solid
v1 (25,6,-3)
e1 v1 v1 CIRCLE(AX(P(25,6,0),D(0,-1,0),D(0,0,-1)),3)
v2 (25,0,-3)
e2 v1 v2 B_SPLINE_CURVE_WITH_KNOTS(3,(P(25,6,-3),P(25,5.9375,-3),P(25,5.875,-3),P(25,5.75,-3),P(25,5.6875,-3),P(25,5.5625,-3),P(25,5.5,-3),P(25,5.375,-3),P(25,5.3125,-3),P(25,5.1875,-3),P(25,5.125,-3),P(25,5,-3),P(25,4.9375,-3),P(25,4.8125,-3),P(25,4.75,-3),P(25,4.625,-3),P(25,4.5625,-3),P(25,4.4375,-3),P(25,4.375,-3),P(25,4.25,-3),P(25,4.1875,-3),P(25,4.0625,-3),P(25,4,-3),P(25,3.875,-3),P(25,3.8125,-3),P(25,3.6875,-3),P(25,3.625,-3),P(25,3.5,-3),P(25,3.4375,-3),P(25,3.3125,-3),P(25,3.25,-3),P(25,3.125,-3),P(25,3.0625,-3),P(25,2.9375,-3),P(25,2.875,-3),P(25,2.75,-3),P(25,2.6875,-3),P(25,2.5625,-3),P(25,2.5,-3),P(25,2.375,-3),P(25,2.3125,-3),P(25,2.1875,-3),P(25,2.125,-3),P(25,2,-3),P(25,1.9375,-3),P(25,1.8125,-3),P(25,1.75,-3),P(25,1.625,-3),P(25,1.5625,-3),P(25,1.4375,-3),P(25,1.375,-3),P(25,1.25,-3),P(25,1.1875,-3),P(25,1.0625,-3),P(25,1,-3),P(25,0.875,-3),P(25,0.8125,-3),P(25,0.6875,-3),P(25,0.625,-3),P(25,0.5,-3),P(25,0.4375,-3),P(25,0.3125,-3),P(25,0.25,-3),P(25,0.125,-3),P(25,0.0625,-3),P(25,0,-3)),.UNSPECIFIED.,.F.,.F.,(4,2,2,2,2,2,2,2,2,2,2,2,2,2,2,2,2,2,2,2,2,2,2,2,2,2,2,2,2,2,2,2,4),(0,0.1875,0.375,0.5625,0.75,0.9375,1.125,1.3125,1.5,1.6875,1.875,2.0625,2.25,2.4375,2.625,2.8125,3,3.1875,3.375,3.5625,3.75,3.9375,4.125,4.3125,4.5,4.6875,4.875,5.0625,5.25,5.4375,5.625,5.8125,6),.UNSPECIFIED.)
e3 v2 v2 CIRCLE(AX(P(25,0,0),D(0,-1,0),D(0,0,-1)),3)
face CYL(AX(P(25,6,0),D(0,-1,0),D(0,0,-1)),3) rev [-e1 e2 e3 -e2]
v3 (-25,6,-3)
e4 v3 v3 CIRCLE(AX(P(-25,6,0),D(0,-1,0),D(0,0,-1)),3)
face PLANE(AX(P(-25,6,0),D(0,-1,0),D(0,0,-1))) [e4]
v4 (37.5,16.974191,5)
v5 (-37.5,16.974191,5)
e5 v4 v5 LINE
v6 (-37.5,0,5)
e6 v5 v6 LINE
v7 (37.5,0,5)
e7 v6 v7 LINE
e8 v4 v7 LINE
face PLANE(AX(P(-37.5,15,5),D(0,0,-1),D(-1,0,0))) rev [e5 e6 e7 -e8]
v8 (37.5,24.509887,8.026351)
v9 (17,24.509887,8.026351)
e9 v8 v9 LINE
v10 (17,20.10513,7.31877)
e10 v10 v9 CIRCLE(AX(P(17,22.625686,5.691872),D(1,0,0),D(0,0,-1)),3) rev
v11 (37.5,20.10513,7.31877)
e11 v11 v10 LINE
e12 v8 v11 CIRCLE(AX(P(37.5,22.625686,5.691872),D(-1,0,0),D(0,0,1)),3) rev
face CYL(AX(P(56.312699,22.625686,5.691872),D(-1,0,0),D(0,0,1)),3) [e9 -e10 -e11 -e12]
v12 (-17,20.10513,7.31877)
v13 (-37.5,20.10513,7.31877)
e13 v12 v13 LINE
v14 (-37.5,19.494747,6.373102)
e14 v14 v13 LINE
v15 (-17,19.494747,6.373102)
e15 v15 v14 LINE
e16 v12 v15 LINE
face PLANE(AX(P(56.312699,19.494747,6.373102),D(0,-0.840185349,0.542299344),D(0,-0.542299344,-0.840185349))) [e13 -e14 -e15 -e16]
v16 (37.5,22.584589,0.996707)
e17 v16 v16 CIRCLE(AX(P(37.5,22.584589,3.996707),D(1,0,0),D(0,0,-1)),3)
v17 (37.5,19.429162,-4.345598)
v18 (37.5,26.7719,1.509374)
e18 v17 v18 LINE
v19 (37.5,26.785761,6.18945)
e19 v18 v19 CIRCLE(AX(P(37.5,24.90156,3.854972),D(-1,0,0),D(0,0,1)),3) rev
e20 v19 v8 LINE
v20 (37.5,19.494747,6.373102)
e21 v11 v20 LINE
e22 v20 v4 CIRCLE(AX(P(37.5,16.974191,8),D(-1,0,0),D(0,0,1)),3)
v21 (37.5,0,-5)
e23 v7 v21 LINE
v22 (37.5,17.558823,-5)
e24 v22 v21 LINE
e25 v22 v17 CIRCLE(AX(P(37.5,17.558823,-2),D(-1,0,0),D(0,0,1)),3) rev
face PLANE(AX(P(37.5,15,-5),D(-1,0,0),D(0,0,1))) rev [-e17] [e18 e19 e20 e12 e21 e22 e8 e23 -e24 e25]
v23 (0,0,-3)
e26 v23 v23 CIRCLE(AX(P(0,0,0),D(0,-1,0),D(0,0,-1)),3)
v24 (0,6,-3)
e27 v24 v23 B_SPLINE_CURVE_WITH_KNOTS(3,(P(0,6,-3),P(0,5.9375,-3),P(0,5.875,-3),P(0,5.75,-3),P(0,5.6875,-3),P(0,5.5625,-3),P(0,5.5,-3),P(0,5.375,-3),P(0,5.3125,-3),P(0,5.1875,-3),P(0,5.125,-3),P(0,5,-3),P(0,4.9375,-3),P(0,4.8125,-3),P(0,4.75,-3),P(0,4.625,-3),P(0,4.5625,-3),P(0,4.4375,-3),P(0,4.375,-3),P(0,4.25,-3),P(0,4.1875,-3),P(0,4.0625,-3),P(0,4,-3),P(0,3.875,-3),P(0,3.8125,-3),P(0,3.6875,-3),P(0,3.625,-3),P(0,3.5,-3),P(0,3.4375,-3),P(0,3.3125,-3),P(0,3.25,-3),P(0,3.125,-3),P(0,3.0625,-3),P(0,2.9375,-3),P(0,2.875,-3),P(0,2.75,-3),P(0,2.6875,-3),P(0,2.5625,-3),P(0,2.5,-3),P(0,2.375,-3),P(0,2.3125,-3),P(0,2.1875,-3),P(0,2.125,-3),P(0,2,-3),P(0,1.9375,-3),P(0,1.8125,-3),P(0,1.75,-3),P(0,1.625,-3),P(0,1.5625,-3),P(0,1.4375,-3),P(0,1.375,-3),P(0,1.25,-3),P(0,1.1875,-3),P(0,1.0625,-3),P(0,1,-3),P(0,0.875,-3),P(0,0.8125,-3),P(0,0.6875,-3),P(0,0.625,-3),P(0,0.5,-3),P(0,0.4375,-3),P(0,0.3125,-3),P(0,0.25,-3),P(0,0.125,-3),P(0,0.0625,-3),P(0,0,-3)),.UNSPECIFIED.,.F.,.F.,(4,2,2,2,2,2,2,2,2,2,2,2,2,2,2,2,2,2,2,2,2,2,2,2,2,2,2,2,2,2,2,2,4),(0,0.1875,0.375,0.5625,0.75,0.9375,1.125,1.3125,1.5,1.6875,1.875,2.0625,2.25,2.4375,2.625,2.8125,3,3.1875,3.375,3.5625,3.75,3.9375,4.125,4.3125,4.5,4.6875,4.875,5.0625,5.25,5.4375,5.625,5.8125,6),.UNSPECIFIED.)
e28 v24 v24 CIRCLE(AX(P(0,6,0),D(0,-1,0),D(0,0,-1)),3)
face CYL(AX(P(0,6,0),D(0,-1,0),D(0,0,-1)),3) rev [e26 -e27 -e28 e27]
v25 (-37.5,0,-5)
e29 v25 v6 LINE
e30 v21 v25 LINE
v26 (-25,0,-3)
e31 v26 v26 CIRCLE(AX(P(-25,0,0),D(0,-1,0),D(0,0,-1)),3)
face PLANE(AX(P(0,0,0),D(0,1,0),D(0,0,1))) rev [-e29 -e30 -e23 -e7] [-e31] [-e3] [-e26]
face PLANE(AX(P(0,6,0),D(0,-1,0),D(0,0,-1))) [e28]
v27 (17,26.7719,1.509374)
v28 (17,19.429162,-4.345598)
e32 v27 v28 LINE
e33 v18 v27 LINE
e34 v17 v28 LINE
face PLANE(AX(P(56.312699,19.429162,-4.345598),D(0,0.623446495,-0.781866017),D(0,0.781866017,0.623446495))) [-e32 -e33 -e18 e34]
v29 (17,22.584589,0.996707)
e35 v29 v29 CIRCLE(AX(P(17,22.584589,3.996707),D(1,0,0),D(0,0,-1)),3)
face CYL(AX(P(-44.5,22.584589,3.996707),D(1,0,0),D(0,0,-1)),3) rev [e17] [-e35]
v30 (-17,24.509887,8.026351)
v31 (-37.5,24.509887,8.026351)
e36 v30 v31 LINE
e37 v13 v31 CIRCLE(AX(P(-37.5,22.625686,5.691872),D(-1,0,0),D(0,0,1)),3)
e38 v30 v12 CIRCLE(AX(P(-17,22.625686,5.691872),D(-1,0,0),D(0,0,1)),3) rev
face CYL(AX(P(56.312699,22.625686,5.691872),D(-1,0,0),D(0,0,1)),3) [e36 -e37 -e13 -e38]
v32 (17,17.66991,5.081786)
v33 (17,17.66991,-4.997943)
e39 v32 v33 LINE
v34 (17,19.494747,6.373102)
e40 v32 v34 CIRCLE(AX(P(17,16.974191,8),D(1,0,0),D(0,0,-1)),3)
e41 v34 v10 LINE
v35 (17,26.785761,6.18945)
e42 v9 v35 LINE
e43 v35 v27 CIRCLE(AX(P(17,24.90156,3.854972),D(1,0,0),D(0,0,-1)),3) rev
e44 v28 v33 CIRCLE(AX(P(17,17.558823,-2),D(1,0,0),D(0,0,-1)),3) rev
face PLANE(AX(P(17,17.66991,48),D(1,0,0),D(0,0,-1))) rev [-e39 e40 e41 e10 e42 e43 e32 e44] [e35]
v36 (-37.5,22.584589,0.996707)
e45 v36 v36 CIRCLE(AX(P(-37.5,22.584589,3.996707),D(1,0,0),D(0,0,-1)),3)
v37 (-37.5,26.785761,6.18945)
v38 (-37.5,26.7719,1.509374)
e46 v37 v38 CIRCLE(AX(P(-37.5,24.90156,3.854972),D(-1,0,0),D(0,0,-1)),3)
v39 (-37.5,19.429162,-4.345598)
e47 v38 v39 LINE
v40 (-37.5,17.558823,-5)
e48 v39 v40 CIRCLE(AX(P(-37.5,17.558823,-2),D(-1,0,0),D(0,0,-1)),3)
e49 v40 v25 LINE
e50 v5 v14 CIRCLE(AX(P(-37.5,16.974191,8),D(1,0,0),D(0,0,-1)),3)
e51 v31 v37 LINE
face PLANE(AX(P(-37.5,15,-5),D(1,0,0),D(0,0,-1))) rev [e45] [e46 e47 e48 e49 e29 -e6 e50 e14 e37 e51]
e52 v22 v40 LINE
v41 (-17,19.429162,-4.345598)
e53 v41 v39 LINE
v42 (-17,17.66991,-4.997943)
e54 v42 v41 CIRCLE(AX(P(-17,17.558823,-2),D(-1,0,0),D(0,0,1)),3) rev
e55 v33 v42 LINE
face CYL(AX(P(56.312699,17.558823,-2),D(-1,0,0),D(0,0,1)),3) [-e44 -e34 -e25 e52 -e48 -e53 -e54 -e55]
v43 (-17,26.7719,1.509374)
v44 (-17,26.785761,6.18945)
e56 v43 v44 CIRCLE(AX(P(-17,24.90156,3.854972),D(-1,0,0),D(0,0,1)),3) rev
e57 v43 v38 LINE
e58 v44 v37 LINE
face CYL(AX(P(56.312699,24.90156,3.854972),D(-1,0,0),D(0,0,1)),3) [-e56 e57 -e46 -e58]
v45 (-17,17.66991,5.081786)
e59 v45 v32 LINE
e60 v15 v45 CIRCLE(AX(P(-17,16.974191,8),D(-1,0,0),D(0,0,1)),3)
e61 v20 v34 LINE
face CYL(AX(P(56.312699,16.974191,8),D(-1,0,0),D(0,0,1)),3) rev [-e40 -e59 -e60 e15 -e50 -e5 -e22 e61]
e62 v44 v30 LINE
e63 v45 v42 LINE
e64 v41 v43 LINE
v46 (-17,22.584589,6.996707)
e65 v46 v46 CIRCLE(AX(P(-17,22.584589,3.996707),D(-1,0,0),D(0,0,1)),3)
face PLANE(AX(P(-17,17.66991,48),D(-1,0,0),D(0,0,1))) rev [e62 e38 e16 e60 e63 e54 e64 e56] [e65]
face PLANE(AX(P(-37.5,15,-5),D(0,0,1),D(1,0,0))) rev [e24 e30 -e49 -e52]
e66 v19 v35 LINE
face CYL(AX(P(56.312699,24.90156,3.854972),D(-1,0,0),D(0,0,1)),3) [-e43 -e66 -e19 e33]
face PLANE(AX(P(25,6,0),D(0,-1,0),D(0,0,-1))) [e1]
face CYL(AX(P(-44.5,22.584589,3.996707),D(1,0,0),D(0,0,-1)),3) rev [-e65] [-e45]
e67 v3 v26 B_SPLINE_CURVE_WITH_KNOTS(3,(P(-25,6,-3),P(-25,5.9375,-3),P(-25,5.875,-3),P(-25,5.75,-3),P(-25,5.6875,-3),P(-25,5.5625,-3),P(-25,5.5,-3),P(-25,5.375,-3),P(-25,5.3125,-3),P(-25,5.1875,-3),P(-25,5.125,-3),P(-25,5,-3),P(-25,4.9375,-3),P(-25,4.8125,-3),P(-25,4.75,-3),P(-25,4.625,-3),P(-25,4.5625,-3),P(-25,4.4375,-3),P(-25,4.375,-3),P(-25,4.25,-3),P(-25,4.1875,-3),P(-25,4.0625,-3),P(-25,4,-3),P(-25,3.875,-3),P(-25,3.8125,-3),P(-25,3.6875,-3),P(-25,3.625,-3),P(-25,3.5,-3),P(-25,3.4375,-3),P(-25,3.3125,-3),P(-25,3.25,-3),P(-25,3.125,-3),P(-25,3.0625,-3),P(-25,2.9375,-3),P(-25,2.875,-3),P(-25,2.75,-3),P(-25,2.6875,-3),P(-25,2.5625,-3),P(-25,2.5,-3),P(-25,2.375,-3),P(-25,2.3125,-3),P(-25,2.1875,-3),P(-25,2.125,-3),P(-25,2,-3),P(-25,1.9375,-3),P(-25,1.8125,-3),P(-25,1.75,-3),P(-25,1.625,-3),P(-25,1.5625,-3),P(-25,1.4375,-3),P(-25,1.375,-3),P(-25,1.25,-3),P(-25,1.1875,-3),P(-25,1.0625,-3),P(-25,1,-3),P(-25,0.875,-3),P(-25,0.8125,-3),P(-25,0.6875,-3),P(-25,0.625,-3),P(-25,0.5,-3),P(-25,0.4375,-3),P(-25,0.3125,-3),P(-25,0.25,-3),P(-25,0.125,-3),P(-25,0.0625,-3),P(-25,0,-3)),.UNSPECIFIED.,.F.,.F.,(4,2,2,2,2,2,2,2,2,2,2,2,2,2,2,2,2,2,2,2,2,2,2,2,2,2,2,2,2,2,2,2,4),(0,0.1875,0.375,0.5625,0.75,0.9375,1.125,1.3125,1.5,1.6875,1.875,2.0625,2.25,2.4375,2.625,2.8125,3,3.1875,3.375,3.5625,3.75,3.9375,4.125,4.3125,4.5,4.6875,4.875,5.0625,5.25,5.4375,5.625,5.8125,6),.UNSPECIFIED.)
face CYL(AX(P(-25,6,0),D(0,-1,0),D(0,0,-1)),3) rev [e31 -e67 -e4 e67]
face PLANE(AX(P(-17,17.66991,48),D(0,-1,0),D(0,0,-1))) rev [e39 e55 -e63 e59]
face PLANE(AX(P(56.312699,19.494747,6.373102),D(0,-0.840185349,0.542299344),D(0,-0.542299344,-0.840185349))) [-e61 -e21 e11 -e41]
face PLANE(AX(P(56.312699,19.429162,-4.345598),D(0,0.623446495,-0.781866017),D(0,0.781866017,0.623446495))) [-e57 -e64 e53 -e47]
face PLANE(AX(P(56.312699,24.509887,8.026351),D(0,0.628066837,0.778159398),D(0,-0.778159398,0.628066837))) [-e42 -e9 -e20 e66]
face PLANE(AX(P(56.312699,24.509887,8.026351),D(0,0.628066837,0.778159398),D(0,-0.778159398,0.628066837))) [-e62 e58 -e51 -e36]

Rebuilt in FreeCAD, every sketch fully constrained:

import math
import FreeCAD as App
import Part
import Sketcher
Q = App.Units.Quantity

doc = App.newDocument("Part")
body = doc.addObject("PartDesign::Body", "Body")

sketch1 = body.newObject("Sketcher::SketchObject", "Sketch")
sketch1.AttachmentSupport = (doc.getObject("XZ_Plane"), [""])
sketch1.MapMode = "FlatFace"
sketch1.addGeometry(Part.LineSegment(App.Vector(-38, -5, 0), App.Vector(-38, 5, 0)), False)
sketch1.addGeometry(Part.LineSegment(App.Vector(-38, 5, 0), App.Vector(38, 5, 0)), False)
sketch1.addGeometry(Part.LineSegment(App.Vector(38, 5, 0), App.Vector(38, -5, 0)), False)
sketch1.addGeometry(Part.LineSegment(App.Vector(38, -5, 0), App.Vector(-38, -5, 0)), False)
sketch1.addConstraint(Sketcher.Constraint("Coincident", 0, 2, 1, 1))
sketch1.addConstraint(Sketcher.Constraint("Coincident", 1, 2, 2, 1))
sketch1.addConstraint(Sketcher.Constraint("Coincident", 2, 2, 3, 1))
sketch1.addConstraint(Sketcher.Constraint("Coincident", 3, 2, 0, 1))
sketch1.addConstraint(Sketcher.Constraint("Vertical", 0))
sketch1.addConstraint(Sketcher.Constraint("Horizontal", 1))
sketch1.addConstraint(Sketcher.Constraint("Vertical", 2))
sketch1.addConstraint(Sketcher.Constraint("Horizontal", 3))
sketch1.addConstraint(Sketcher.Constraint("Symmetric", 0, 2, 2, 2, -1, 1))
sketch1.addConstraint(Sketcher.Constraint("DistanceX", 1, 1, 1, 2, Q("75 mm")))
sketch1.addConstraint(Sketcher.Constraint("DistanceY", 0, 1, 0, 2, Q("10 mm")))
pad1 = body.newObject("PartDesign::Pad", "Pad")
pad1.Profile = sketch1
pad1.Length = 15
pad1.Reversed = True

sketch2 = body.newObject("Sketcher::SketchObject", "Sketch001")
sketch2.AttachmentSupport = (doc.getObject("YZ_Plane"), [""])
sketch2.MapMode = "FlatFace"
sketch2.AttachmentOffset = App.Placement(App.Vector(0, 0, -37.5), App.Rotation())
sketch2.addGeometry(Part.LineSegment(App.Vector(15, -5, 0), App.Vector(15, 5, 0)), False)
sketch2.addGeometry(Part.LineSegment(App.Vector(15, 5, 0), App.Vector(17, 5, 0)), False)
sketch2.addGeometry(Part.ArcOfCircle(Part.Circle(App.Vector(17, 8, 0), App.Vector(0, 0, 1), 3), math.radians(-90), math.radians(-33)), False)
sketch2.addGeometry(Part.LineSegment(App.Vector(19.5, 6.4, 0), App.Vector(20.1, 7.3, 0)), False)
sketch2.addGeometry(Part.ArcOfCircle(Part.Circle(App.Vector(22.6, 5.7, 0), App.Vector(0, 0, 1), 3), math.radians(51), math.radians(147)), False)
sketch2.addGeometry(Part.LineSegment(App.Vector(24.5, 8, 0), App.Vector(26.8, 6.2, 0)), False)
sketch2.addGeometry(Part.ArcOfCircle(Part.Circle(App.Vector(24.9, 3.9, 0), App.Vector(0, 0, 1), 3), math.radians(-51), math.radians(51)), False)
sketch2.addGeometry(Part.LineSegment(App.Vector(26.8, 1.5, 0), App.Vector(19.4, -4.3, 0)), False)
sketch2.addGeometry(Part.ArcOfCircle(Part.Circle(App.Vector(17.6, -2, 0), App.Vector(0, 0, 1), 3), math.radians(-90), math.radians(-51)), False)
sketch2.addGeometry(Part.LineSegment(App.Vector(17.6, -5, 0), App.Vector(15, -5, 0)), False)
sketch2.addConstraint(Sketcher.Constraint("Coincident", 0, 2, 1, 1))
sketch2.addConstraint(Sketcher.Constraint("Tangent", 1, 2, 2, 1))
sketch2.addConstraint(Sketcher.Constraint("Tangent", 2, 2, 3, 1))
sketch2.addConstraint(Sketcher.Constraint("Tangent", 3, 2, 4, 2))
sketch2.addConstraint(Sketcher.Constraint("Tangent", 4, 1, 5, 1))
sketch2.addConstraint(Sketcher.Constraint("Tangent", 5, 2, 6, 2))
sketch2.addConstraint(Sketcher.Constraint("Tangent", 6, 1, 7, 1))
sketch2.addConstraint(Sketcher.Constraint("Tangent", 7, 2, 8, 2))
sketch2.addConstraint(Sketcher.Constraint("Tangent", 8, 1, 9, 1))
sketch2.addConstraint(Sketcher.Constraint("Coincident", 9, 2, 0, 1))
sketch2.addConstraint(Sketcher.Constraint("Vertical", 0))
sketch2.addConstraint(Sketcher.Constraint("Horizontal", 1))
sketch2.addConstraint(Sketcher.Constraint("Horizontal", 9))
sketch2.addConstraint(Sketcher.Constraint("Equal", 2, 4))
sketch2.addConstraint(Sketcher.Constraint("Equal", 4, 6))
sketch2.addConstraint(Sketcher.Constraint("Equal", 6, 8))
sketch2.addConstraint(Sketcher.Constraint("Radius", 2, Q("3 mm")))
sketch2.addConstraint(Sketcher.Constraint("DistanceY", 0, 1, 0, 2, Q("10 mm")))
sketch2.addConstraint(Sketcher.Constraint("DistanceY", -1, 1, 2, 3, Q("8 mm")))
sketch2.addConstraint(Sketcher.Constraint("DistanceX", -1, 1, 0, 2, Q("15 mm")))
sketch2.addConstraint(Sketcher.Constraint("Distance", 7, Q("9.391299 mm")))
sketch2.addConstraint(Sketcher.Constraint("DistanceX", 1, 1, 1, 2, Q("1.974191 mm")))
sketch2.addConstraint(Sketcher.Constraint("DistanceY", -1, 1, 2, 2, Q("6.373102 mm")))
sketch2.addConstraint(Sketcher.Constraint("DistanceX", -1, 1, 6, 1, Q("26.7719 mm")))
sketch2.addConstraint(Sketcher.Constraint("DistanceY", 7, 2, -1, 1, Q("4.345598 mm")))
sketch2.addConstraint(Sketcher.Constraint("DistanceY", 6, 3, 4, 3, Q("1.8369 mm")))
pad2 = body.newObject("PartDesign::Pad", "Pad001")
pad2.Profile = sketch2
pad2.Length = 75

sketch3 = body.newObject("Sketcher::SketchObject", "Sketch002")
sketch3.AttachmentSupport = (doc.getObject("XY_Plane"), [""])
sketch3.MapMode = "FlatFace"
sketch3.AttachmentOffset = App.Placement(App.Vector(0, 0, -5), App.Rotation())
sketch3.addGeometry(Part.LineSegment(App.Vector(17, 38, 0), App.Vector(17, 18, 0)), False)
sketch3.addGeometry(Part.LineSegment(App.Vector(17, 18, 0), App.Vector(-17, 18, 0)), False)
sketch3.addGeometry(Part.LineSegment(App.Vector(-17, 18, 0), App.Vector(-17, 38, 0)), False)
sketch3.addGeometry(Part.LineSegment(App.Vector(-17, 38, 0), App.Vector(17, 38, 0)), False)
sketch3.addConstraint(Sketcher.Constraint("Coincident", 0, 2, 1, 1))
sketch3.addConstraint(Sketcher.Constraint("Coincident", 1, 2, 2, 1))
sketch3.addConstraint(Sketcher.Constraint("Coincident", 2, 2, 3, 1))
sketch3.addConstraint(Sketcher.Constraint("Coincident", 3, 2, 0, 1))
sketch3.addConstraint(Sketcher.Constraint("Vertical", 0))
sketch3.addConstraint(Sketcher.Constraint("Horizontal", 1))
sketch3.addConstraint(Sketcher.Constraint("Vertical", 2))
sketch3.addConstraint(Sketcher.Constraint("Horizontal", 3))
sketch3.addConstraint(Sketcher.Constraint("DistanceX", 1, 2, 1, 1, Q("34 mm")))
sketch3.addConstraint(Sketcher.Constraint("DistanceX", -1, 1, 0, 2, Q("17 mm")))
sketch3.addConstraint(Sketcher.Constraint("DistanceY", 0, 2, 0, 1, Q("20.463301 mm")))
sketch3.addConstraint(Sketcher.Constraint("DistanceY", -1, 1, 0, 2, Q("17.66991 mm")))
pocket1 = body.newObject("PartDesign::Pocket", "Pocket")
pocket1.Profile = sketch3
pocket1.Length = 53
pocket1.Reversed = True

sketch4 = body.newObject("Sketcher::SketchObject", "Sketch003")
sketch4.AttachmentSupport = (doc.getObject("YZ_Plane"), [""])
sketch4.MapMode = "FlatFace"
sketch4.AttachmentOffset = App.Placement(App.Vector(0, 0, 37.5), App.Rotation())
sketch4.addGeometry(Part.Circle(App.Vector(22.6, 4, 0), App.Vector(0, 0, 1), 3), False)
sketch4.addConstraint(Sketcher.Constraint("Diameter", 0, Q("6 mm")))
sketch4.addConstraint(Sketcher.Constraint("DistanceX", -1, 1, 0, 3, Q("22.584589 mm")))
sketch4.addConstraint(Sketcher.Constraint("DistanceY", -1, 1, 0, 3, Q("3.996707 mm")))
pocket2 = body.newObject("PartDesign::Pocket", "Pocket001")
pocket2.Profile = sketch4
pocket2.Length = 82

sketch5 = body.newObject("Sketcher::SketchObject", "Sketch004")
sketch5.AttachmentSupport = (doc.getObject("XZ_Plane"), [""])
sketch5.MapMode = "FlatFace"
sketch5.addGeometry(Part.Circle(App.Vector(0, 0, 0), App.Vector(0, 0, 1), 3), False)
sketch5.addGeometry(Part.Circle(App.Vector(25, 0, 0), App.Vector(0, 0, 1), 3), False)
sketch5.addGeometry(Part.Circle(App.Vector(-25, 0, 0), App.Vector(0, 0, 1), 3), False)
sketch5.addConstraint(Sketcher.Constraint("Coincident", 0, 3, -1, 1))
sketch5.addConstraint(Sketcher.Constraint("Equal", 0, 1))
sketch5.addConstraint(Sketcher.Constraint("Equal", 1, 2))
sketch5.addConstraint(Sketcher.Constraint("Symmetric", 1, 3, 2, 3, -1, 1))
sketch5.addConstraint(Sketcher.Constraint("PointOnObject", 1, 3, -1))
sketch5.addConstraint(Sketcher.Constraint("Diameter", 0, Q("6 mm")))
sketch5.addConstraint(Sketcher.Constraint("DistanceX", -1, 1, 1, 3, Q("25 mm")))
pocket3 = body.newObject("PartDesign::Pocket", "Pocket002")
pocket3.Profile = sketch5
pocket3.Length = 6

doc.recompute()
